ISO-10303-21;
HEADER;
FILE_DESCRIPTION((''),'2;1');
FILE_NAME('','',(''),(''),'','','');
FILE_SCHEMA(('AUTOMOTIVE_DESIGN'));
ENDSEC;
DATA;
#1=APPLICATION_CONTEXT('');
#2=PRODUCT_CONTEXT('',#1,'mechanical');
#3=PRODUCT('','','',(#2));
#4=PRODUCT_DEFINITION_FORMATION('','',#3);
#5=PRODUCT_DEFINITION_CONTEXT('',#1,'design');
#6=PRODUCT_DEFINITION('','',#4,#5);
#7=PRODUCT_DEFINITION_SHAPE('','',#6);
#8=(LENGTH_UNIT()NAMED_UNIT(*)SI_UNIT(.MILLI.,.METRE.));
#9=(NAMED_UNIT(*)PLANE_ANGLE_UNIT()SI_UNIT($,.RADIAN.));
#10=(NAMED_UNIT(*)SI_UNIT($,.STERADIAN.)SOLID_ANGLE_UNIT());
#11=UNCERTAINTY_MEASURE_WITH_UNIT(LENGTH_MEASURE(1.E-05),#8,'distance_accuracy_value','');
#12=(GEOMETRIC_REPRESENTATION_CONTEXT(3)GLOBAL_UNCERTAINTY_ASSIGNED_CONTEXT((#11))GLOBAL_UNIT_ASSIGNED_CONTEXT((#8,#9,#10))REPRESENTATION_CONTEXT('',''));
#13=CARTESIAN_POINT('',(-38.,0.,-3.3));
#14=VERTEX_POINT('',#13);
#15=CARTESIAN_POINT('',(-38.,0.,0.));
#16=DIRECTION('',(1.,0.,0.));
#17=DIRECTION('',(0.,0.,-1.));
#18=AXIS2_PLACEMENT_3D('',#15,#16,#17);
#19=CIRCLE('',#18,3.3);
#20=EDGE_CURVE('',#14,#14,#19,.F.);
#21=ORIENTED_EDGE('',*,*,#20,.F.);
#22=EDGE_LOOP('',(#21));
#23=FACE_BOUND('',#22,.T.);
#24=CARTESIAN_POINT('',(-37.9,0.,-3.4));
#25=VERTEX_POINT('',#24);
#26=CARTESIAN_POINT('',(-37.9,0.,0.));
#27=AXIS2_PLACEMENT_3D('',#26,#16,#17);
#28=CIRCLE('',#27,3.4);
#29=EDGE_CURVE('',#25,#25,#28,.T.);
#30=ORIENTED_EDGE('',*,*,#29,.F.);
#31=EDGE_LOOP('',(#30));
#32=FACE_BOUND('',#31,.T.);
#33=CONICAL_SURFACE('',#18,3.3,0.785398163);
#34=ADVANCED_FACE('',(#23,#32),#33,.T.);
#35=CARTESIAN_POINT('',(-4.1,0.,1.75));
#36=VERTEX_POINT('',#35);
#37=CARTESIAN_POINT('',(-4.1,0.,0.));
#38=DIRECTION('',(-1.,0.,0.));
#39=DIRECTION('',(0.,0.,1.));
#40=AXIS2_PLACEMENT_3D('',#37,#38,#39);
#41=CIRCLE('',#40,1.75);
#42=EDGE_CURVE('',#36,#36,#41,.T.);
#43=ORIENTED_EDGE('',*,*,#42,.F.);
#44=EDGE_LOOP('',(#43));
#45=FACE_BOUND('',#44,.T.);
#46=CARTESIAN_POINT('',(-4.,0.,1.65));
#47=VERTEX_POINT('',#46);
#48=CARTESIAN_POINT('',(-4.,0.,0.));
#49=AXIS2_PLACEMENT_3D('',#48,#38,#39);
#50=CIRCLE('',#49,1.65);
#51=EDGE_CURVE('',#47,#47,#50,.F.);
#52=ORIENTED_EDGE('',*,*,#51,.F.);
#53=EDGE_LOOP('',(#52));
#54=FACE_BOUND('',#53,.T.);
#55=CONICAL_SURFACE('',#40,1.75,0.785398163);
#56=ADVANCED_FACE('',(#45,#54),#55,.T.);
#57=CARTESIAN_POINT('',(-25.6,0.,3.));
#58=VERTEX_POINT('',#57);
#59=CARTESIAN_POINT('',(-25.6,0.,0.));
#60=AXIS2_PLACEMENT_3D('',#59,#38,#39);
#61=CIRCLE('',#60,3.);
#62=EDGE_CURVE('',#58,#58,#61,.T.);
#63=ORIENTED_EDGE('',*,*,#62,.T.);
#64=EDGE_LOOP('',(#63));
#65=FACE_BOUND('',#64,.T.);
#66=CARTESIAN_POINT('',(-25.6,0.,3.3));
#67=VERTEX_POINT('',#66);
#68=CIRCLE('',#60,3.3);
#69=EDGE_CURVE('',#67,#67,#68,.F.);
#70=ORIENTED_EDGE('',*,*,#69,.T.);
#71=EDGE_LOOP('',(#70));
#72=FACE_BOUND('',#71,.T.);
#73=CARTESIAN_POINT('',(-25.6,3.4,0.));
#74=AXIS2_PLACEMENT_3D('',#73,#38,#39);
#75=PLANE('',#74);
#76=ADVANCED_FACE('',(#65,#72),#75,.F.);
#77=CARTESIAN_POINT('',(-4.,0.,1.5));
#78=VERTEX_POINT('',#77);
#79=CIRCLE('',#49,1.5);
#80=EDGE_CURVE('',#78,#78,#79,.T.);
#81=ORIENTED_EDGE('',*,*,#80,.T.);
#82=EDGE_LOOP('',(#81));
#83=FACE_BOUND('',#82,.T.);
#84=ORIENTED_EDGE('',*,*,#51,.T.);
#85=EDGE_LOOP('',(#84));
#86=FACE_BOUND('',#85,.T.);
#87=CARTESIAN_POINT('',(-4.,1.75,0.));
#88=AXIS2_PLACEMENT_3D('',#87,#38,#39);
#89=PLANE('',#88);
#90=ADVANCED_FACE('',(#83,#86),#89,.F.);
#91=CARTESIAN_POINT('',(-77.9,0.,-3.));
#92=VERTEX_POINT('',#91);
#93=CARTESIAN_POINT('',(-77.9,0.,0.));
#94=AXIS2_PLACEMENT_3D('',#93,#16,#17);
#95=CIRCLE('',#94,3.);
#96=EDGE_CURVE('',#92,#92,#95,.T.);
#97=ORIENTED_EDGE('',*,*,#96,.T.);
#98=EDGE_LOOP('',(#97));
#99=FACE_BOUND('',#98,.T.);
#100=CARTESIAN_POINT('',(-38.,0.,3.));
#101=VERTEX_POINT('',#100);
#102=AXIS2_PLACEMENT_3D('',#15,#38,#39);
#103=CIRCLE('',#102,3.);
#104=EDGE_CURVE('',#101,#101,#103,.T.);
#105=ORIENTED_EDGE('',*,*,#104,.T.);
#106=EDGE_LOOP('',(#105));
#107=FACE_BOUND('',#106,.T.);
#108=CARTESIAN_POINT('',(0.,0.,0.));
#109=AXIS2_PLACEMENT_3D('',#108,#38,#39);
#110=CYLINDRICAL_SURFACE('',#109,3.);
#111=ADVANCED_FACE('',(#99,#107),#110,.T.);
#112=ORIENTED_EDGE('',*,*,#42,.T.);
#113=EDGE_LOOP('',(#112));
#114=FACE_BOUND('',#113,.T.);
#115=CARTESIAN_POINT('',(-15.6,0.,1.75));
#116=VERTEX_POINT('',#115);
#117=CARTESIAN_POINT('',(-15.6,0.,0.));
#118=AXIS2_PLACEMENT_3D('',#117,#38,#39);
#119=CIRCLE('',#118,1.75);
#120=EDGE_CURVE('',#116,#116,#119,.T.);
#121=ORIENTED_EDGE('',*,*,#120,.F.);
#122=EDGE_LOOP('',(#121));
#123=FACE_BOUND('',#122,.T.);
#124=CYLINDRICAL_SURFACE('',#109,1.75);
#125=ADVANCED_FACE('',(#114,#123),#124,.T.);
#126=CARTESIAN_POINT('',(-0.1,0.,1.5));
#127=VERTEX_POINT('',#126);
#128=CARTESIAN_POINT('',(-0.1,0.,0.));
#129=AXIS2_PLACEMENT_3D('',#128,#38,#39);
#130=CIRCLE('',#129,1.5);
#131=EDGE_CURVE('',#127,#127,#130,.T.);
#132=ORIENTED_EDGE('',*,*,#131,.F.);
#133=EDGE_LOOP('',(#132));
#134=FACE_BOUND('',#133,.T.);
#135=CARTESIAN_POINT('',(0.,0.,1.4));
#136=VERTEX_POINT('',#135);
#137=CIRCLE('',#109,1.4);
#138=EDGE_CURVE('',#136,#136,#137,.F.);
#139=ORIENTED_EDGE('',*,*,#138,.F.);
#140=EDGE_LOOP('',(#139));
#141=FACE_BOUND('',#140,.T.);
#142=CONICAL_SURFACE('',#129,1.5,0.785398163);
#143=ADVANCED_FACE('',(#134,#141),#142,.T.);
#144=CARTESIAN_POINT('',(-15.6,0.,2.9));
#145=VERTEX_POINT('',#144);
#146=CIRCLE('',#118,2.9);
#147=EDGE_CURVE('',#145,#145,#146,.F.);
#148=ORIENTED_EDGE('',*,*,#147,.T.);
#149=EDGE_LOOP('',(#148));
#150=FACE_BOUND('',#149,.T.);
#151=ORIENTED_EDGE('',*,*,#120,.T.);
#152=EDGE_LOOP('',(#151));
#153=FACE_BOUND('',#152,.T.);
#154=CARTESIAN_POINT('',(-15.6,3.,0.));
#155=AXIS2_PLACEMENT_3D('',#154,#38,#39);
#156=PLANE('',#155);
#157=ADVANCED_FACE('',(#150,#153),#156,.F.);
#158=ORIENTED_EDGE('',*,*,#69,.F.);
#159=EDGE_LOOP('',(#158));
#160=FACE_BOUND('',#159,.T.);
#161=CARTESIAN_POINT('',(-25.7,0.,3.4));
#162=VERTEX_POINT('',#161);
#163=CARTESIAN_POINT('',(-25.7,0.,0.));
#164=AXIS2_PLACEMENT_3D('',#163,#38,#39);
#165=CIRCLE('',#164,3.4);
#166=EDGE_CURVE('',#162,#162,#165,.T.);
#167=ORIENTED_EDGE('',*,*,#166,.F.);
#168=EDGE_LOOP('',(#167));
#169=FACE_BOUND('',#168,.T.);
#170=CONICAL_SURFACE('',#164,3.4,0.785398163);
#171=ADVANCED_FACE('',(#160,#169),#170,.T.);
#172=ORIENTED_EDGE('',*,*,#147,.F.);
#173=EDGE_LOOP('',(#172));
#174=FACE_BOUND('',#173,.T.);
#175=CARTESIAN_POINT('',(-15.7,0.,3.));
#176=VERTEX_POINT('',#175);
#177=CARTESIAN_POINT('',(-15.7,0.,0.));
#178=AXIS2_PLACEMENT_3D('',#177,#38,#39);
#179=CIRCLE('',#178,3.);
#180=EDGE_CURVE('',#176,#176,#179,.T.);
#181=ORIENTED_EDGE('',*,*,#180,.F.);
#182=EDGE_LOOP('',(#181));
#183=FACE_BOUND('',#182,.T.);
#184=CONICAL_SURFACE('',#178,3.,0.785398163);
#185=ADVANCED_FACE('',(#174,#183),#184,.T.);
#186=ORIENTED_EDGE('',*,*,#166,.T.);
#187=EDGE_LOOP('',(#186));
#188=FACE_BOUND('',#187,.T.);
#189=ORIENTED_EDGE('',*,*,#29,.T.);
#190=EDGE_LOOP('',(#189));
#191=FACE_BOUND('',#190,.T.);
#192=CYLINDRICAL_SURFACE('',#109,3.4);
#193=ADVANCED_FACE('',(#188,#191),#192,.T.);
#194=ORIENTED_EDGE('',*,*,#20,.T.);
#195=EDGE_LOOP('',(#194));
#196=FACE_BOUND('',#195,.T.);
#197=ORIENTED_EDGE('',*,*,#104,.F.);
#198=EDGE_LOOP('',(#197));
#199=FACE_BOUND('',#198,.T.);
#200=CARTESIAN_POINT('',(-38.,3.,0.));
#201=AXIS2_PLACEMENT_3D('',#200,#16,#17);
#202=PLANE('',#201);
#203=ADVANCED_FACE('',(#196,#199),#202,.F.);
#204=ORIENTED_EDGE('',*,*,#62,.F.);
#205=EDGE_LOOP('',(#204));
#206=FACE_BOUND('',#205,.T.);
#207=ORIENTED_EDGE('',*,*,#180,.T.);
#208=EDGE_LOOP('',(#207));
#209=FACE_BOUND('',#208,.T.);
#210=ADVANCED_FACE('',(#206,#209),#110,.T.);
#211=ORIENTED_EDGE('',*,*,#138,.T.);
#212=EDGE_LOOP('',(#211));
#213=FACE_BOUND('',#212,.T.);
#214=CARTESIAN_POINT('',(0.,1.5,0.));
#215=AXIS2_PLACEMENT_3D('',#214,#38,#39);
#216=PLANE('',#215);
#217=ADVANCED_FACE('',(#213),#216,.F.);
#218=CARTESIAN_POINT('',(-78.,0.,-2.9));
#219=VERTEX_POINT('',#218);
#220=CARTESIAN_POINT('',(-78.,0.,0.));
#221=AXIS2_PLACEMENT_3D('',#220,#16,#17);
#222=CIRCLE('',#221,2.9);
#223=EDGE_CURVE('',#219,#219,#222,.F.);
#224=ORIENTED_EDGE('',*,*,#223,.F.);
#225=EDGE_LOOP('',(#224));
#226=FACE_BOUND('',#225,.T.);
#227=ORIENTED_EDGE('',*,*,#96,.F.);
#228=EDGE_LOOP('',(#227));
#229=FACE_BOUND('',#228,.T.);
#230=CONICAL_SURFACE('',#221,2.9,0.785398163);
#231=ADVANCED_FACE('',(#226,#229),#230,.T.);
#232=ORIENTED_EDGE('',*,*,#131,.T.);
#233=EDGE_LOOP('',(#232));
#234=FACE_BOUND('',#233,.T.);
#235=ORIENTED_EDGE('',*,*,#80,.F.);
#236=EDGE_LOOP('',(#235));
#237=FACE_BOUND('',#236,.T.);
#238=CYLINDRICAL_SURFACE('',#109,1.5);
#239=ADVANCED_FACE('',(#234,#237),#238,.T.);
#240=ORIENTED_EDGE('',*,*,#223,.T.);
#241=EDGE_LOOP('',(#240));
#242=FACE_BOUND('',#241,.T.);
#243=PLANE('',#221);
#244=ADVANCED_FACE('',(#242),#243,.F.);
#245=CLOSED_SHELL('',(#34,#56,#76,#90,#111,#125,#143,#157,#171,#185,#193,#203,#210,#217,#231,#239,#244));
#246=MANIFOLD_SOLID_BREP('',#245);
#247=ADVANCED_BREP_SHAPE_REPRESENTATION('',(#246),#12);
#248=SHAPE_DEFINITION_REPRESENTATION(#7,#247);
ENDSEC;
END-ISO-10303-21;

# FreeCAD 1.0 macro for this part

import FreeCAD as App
import Part
import Sketcher
from FreeCAD import Vector
Q = App.Units.Quantity


def edges_at(feature, points):
    """Names of the edges that pass closest to the given points."""
    edges = feature.Shape.Edges
    near = lambda p: min(range(len(edges)), key=lambda i: edges[i].distToShape(Part.Vertex(*p))[0])
    return sorted({f"Edge{near(p) + 1}" for p in points})


def add_polygon(sketch, points):
    """Adds a closed chain of lines whose ends are joined by coincident constraints."""
    first, n = sketch.GeometryCount, len(points)
    for a, b in zip(points, points[1:] + points[:1]):
        sketch.addGeometry(Part.LineSegment(App.Vector(*a, 0), App.Vector(*b, 0)), False)
    for i in range(n):
        sketch.addConstraint(Sketcher.Constraint("Coincident", first + i, 2, first + (i + 1) % n, 1))

doc = App.newDocument("Part")
body = doc.addObject("PartDesign::Body", "Body")

sketch1 = body.newObject("Sketcher::SketchObject", "Sketch")
sketch1.AttachmentSupport = (doc.getObject("XY_Plane"), [""])
sketch1.MapMode = "FlatFace"
add_polygon(sketch1, [(-15.6, 3), (-25.6, 3), (-25.6, 3.4), (-38, 3.4), (-38, 3), (-78, 3), (-78, 0), (0, 0), (0, 1.5), (-4, 1.5), (-4, 1.75), (-15.6, 1.75)])
sketch1.addConstraint(Sketcher.Constraint("Horizontal", 0))
sketch1.addConstraint(Sketcher.Constraint("Vertical", 1))
sketch1.addConstraint(Sketcher.Constraint("Horizontal", 2))
sketch1.addConstraint(Sketcher.Constraint("Vertical", 3))
sketch1.addConstraint(Sketcher.Constraint("Horizontal", 4))
sketch1.addConstraint(Sketcher.Constraint("Vertical", 5))
sketch1.addConstraint(Sketcher.Constraint("Horizontal", 6))
sketch1.addConstraint(Sketcher.Constraint("Vertical", 7))
sketch1.addConstraint(Sketcher.Constraint("Horizontal", 8))
sketch1.addConstraint(Sketcher.Constraint("Vertical", 9))
sketch1.addConstraint(Sketcher.Constraint("Horizontal", 10))
sketch1.addConstraint(Sketcher.Constraint("Vertical", 11))
sketch1.addConstraint(Sketcher.Constraint("Coincident", 6, 2, -1, 1))
sketch1.addConstraint(Sketcher.Constraint("Horizontal", 0, 2, 3, 2))
sketch1.addConstraint(Sketcher.Constraint("DistanceX", 0, 2, 0, 1, Q("10 mm")))
sketch1.addConstraint(Sketcher.Constraint("DistanceX", 4, 2, 4, 1, Q("40 mm")))
sketch1.addConstraint(Sketcher.Constraint("DistanceX", 6, 1, 6, 2, Q("78 mm")))
sketch1.addConstraint(Sketcher.Constraint("DistanceX", 8, 2, 8, 1, Q("4 mm")))
sketch1.addConstraint(Sketcher.Constraint("DistanceY", 5, 2, 5, 1, Q("3 mm")))
sketch1.addConstraint(Sketcher.Constraint("DistanceX", 2, 2, 2, 1, Q("12.4 mm")))
sketch1.addConstraint(Sketcher.Constraint("DistanceY", 1, 1, 1, 2, Q("0.4 mm")))
sketch1.addConstraint(Sketcher.Constraint("DistanceY", 7, 1, 7, 2, Q("1.5 mm")))
sketch1.addConstraint(Sketcher.Constraint("DistanceY", 9, 1, 9, 2, Q("0.25 mm")))
revolution = body.newObject("PartDesign::Revolution", "Revolution")
revolution.Profile = sketch1
revolution.ReferenceAxis = (sketch1, ["H_Axis"])
revolution.Angle = 360
doc.recompute()

chamfer = body.newObject("PartDesign::Chamfer", "Chamfer")
chamfer.Base = (revolution, edges_at(revolution, [
    (-4, 0, -1.75),
    (-15.6, 0, -3),
    (-25.6, 0, -3.4),
    (-38, 0, -3.4),
    (-78, 0, -3),
    (0, 0, -1.5),
]))
chamfer.Size = 0.1

doc.recompute()
